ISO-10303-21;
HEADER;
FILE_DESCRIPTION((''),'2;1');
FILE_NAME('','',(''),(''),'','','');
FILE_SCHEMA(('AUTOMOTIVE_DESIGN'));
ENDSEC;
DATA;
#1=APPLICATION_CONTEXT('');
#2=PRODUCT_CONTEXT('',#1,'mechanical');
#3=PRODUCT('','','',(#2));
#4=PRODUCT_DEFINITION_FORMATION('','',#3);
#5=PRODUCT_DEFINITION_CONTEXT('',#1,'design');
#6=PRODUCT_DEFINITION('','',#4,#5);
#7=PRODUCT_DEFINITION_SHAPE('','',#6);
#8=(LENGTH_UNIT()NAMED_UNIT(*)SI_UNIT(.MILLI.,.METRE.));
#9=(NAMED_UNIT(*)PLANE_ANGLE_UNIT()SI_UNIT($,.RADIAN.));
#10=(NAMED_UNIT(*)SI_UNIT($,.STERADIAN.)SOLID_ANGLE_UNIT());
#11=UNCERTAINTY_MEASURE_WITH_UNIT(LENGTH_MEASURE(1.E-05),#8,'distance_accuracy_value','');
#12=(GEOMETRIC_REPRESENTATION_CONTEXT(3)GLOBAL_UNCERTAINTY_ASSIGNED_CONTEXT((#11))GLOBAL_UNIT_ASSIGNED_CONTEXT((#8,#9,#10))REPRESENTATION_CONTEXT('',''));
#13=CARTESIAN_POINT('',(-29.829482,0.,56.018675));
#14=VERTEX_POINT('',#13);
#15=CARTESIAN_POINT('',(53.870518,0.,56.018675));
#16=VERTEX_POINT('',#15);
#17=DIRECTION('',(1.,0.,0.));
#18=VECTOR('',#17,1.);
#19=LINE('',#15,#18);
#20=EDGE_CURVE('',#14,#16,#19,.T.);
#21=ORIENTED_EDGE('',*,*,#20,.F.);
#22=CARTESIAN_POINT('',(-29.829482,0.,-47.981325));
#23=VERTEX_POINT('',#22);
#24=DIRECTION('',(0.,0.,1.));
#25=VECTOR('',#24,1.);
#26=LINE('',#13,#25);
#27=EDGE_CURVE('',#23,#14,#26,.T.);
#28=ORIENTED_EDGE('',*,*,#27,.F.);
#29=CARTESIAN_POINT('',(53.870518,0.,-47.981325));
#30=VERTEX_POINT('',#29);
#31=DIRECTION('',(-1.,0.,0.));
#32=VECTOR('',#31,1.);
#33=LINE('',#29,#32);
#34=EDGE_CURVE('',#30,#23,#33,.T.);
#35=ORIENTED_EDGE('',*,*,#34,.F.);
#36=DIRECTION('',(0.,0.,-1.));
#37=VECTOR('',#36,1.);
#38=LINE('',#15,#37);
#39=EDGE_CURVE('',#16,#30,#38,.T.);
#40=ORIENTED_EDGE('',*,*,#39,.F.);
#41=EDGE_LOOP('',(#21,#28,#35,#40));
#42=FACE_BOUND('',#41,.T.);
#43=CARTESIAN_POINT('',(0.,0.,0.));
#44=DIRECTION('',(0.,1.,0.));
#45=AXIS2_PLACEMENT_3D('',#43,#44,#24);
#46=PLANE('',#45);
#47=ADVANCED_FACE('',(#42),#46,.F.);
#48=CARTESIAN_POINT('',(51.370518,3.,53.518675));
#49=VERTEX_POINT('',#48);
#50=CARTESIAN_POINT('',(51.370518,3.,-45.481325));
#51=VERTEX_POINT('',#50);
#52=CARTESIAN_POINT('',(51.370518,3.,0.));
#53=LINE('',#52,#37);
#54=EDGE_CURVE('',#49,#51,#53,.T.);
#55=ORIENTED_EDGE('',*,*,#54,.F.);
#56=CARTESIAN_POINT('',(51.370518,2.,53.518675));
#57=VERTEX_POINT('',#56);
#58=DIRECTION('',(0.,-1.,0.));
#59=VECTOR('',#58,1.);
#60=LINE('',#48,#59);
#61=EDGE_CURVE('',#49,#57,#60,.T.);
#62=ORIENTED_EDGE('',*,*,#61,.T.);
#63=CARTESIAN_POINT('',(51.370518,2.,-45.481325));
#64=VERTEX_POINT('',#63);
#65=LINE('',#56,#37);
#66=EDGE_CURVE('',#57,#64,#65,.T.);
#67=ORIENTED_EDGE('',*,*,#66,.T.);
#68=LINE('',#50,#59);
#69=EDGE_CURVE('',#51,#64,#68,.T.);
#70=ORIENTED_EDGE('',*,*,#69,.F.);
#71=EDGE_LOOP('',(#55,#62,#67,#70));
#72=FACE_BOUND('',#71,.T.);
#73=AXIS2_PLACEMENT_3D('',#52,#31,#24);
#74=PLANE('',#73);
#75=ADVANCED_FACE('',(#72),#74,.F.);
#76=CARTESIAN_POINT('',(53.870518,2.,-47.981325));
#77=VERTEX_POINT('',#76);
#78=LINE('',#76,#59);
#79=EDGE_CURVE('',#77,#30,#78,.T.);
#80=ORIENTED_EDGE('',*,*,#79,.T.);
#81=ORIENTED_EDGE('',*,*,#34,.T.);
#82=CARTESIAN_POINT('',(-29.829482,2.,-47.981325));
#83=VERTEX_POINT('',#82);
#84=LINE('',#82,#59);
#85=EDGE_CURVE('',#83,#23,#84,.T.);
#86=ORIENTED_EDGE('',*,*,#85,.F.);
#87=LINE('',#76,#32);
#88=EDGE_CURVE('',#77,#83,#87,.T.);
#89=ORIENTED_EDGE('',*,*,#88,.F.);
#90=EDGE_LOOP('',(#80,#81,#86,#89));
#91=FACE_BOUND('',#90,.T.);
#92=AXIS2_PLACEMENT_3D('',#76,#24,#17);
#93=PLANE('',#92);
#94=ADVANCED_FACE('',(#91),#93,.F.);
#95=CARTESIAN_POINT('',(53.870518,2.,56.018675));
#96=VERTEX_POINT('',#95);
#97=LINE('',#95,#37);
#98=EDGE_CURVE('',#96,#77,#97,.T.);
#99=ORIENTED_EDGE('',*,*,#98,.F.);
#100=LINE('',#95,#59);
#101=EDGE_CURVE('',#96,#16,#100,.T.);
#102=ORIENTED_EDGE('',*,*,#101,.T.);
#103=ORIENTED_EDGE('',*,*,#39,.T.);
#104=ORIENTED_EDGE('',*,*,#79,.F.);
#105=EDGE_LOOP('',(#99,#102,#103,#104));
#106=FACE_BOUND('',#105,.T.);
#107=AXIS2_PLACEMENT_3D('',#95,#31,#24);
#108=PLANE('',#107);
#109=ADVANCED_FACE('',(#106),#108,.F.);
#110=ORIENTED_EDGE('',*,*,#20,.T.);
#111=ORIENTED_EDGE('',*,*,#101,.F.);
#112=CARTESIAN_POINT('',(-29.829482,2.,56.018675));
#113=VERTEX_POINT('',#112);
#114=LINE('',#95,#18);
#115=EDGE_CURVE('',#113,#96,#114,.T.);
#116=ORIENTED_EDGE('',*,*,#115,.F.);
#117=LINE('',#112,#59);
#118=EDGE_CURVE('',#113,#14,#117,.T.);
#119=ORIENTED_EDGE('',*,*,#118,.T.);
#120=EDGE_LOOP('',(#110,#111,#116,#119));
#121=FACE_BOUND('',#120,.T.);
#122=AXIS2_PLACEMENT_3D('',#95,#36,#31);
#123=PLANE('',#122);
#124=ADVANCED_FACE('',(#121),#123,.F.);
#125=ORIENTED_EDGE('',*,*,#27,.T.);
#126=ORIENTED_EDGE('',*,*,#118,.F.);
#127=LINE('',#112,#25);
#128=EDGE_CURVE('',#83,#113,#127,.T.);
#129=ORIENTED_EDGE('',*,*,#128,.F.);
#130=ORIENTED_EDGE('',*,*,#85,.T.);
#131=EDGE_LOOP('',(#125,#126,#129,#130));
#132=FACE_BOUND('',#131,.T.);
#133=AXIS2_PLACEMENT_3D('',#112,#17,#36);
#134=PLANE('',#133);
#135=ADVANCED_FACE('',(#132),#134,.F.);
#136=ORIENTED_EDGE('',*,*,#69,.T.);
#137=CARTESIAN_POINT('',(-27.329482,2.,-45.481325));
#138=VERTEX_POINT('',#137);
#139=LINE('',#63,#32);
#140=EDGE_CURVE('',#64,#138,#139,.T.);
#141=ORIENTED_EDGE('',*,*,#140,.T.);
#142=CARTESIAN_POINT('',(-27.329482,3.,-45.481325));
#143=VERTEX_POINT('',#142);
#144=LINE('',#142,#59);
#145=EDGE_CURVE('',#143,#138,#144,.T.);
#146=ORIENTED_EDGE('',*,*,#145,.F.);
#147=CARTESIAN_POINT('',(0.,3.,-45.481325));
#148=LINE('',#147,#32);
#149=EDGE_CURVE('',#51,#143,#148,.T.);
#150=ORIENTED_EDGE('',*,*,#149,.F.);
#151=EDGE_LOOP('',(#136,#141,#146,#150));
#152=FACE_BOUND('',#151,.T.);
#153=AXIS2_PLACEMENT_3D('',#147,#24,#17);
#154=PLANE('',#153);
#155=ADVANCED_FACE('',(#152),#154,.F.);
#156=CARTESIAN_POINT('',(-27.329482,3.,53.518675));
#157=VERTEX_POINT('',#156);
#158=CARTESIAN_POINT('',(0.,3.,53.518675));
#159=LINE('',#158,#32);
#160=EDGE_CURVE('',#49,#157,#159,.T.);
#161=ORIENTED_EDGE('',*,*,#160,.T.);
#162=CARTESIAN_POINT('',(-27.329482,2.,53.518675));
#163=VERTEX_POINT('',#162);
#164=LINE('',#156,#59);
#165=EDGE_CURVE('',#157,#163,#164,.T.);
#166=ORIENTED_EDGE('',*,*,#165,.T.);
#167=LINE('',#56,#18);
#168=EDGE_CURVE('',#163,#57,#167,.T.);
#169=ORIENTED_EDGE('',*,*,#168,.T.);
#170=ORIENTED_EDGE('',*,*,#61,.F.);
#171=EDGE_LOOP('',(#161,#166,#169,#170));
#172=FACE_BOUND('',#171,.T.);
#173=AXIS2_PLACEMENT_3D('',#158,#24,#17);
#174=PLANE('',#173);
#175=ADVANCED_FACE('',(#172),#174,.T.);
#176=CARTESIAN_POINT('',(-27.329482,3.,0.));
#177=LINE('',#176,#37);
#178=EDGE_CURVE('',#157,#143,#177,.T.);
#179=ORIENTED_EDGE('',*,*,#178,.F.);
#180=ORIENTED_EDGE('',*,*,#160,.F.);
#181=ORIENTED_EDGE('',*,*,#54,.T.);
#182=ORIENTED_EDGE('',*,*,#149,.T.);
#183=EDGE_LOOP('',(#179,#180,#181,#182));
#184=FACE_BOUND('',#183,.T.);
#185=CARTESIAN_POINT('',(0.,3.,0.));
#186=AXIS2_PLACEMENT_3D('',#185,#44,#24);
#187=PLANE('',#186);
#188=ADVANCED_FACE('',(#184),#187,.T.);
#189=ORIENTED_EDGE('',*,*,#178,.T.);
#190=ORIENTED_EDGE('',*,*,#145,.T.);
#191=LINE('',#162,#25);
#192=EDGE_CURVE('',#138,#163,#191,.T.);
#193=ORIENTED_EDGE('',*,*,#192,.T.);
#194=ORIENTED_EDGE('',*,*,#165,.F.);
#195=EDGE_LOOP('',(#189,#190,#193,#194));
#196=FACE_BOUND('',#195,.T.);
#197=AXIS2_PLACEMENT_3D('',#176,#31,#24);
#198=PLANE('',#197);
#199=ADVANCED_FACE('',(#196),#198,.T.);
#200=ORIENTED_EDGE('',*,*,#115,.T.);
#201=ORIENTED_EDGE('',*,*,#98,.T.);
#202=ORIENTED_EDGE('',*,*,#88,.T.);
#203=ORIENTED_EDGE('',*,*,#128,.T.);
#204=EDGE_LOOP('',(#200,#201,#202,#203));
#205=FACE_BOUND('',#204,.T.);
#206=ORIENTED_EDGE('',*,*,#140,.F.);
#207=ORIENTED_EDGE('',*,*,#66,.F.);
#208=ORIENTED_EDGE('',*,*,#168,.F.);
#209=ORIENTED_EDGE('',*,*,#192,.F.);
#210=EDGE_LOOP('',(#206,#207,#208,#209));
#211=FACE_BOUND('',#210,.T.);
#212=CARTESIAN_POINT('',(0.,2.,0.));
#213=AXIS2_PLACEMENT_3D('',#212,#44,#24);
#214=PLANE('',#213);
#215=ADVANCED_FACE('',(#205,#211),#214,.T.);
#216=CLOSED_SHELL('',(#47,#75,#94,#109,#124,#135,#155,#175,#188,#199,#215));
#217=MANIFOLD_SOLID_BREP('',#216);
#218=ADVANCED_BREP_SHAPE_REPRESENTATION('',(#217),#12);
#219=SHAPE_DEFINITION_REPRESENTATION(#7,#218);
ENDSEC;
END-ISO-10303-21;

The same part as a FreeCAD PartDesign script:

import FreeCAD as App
import Part
import Sketcher
from FreeCAD import Vector
Q = App.Units.Quantity


def add_polygon(sketch, points):
    """Adds a closed chain of lines whose ends are joined by coincident constraints."""
    first, n = sketch.GeometryCount, len(points)
    for a, b in zip(points, points[1:] + points[:1]):
        sketch.addGeometry(Part.LineSegment(App.Vector(*a, 0), App.Vector(*b, 0)), False)
    for i in range(n):
        sketch.addConstraint(Sketcher.Constraint("Coincident", first + i, 2, first + (i + 1) % n, 1))

doc = App.newDocument("Part")
body = doc.addObject("PartDesign::Body", "Body")

# Sketch on XZ plane
sketch1 = body.newObject("Sketcher::SketchObject", "Sketch")
sketch1.AttachmentSupport = (doc.getObject("XZ_Plane"), [""])
sketch1.MapMode = "FlatFace"
add_polygon(sketch1, [(-27.329482, -45.481325), (-27.329482, 53.518675), (51.370518, 53.518675), (51.370518, -45.481325)])  # lines 0-3
sketch1.addConstraint([
    Sketcher.Constraint("Vertical", 0),
    Sketcher.Constraint("Horizontal", 1),
    Sketcher.Constraint("Vertical", 2),
    Sketcher.Constraint("Horizontal", 3),
    Sketcher.Constraint("DistanceY", 0, 1, 0, 2, Q("99 mm")),
    Sketcher.Constraint("DistanceX", 1, 1, 1, 2, Q("78.7 mm")),
    Sketcher.Constraint("DistanceX", 0, 2, -1, 1, Q("27.329482 mm")),
    Sketcher.Constraint("DistanceY", -1, 1, 0, 2, Q("53.518675 mm")),
])
pad1 = body.newObject("PartDesign::Pad", "Pad")
pad1.Profile = sketch1
pad1.Length = 3
pad1.Reversed = True

# Sketch on XZ plane
sketch2 = body.newObject("Sketcher::SketchObject", "Sketch001")
sketch2.AttachmentSupport = (doc.getObject("XZ_Plane"), [""])
sketch2.MapMode = "FlatFace"
add_polygon(sketch2, [(-29.829482, -47.981325), (-29.829482, 56.018675), (53.870518, 56.018675), (53.870518, -47.981325)])  # lines 0-3
add_polygon(sketch2, [(51.370518, 53.518675), (-27.329482, 53.518675), (-27.329482, -45.481325), (51.370518, -45.481325)])  # lines 4-7
sketch2.addConstraint([
    Sketcher.Constraint("Vertical", 0),
    Sketcher.Constraint("Horizontal", 1),
    Sketcher.Constraint("Vertical", 2),
    Sketcher.Constraint("Horizontal", 3),
    Sketcher.Constraint("Horizontal", 4),
    Sketcher.Constraint("Vertical", 5),
    Sketcher.Constraint("Horizontal", 6),
    Sketcher.Constraint("Vertical", 7),
    Sketcher.Constraint("DistanceY", 0, 1, 0, 2, Q("104 mm")),
    Sketcher.Constraint("DistanceY", 5, 2, 5, 1, Q("99 mm")),
    Sketcher.Constraint("DistanceX", 1, 1, 1, 2, Q("83.7 mm")),
    Sketcher.Constraint("DistanceX", 4, 2, 4, 1, Q("78.7 mm")),
    Sketcher.Constraint("DistanceX", 0, 2, 4, 2, Q("2.5 mm")),
    Sketcher.Constraint("DistanceY", 4, 2, 0, 2, Q("2.5 mm")),
    Sketcher.Constraint("DistanceX", 0, 2, -1, 1, Q("29.829482 mm")),
    Sketcher.Constraint("DistanceY", -1, 1, 0, 2, Q("56.018675 mm")),
])
pad2 = body.newObject("PartDesign::Pad", "Pad001")
pad2.Profile = sketch2
pad2.Length = 2
pad2.Reversed = True

doc.recompute()
